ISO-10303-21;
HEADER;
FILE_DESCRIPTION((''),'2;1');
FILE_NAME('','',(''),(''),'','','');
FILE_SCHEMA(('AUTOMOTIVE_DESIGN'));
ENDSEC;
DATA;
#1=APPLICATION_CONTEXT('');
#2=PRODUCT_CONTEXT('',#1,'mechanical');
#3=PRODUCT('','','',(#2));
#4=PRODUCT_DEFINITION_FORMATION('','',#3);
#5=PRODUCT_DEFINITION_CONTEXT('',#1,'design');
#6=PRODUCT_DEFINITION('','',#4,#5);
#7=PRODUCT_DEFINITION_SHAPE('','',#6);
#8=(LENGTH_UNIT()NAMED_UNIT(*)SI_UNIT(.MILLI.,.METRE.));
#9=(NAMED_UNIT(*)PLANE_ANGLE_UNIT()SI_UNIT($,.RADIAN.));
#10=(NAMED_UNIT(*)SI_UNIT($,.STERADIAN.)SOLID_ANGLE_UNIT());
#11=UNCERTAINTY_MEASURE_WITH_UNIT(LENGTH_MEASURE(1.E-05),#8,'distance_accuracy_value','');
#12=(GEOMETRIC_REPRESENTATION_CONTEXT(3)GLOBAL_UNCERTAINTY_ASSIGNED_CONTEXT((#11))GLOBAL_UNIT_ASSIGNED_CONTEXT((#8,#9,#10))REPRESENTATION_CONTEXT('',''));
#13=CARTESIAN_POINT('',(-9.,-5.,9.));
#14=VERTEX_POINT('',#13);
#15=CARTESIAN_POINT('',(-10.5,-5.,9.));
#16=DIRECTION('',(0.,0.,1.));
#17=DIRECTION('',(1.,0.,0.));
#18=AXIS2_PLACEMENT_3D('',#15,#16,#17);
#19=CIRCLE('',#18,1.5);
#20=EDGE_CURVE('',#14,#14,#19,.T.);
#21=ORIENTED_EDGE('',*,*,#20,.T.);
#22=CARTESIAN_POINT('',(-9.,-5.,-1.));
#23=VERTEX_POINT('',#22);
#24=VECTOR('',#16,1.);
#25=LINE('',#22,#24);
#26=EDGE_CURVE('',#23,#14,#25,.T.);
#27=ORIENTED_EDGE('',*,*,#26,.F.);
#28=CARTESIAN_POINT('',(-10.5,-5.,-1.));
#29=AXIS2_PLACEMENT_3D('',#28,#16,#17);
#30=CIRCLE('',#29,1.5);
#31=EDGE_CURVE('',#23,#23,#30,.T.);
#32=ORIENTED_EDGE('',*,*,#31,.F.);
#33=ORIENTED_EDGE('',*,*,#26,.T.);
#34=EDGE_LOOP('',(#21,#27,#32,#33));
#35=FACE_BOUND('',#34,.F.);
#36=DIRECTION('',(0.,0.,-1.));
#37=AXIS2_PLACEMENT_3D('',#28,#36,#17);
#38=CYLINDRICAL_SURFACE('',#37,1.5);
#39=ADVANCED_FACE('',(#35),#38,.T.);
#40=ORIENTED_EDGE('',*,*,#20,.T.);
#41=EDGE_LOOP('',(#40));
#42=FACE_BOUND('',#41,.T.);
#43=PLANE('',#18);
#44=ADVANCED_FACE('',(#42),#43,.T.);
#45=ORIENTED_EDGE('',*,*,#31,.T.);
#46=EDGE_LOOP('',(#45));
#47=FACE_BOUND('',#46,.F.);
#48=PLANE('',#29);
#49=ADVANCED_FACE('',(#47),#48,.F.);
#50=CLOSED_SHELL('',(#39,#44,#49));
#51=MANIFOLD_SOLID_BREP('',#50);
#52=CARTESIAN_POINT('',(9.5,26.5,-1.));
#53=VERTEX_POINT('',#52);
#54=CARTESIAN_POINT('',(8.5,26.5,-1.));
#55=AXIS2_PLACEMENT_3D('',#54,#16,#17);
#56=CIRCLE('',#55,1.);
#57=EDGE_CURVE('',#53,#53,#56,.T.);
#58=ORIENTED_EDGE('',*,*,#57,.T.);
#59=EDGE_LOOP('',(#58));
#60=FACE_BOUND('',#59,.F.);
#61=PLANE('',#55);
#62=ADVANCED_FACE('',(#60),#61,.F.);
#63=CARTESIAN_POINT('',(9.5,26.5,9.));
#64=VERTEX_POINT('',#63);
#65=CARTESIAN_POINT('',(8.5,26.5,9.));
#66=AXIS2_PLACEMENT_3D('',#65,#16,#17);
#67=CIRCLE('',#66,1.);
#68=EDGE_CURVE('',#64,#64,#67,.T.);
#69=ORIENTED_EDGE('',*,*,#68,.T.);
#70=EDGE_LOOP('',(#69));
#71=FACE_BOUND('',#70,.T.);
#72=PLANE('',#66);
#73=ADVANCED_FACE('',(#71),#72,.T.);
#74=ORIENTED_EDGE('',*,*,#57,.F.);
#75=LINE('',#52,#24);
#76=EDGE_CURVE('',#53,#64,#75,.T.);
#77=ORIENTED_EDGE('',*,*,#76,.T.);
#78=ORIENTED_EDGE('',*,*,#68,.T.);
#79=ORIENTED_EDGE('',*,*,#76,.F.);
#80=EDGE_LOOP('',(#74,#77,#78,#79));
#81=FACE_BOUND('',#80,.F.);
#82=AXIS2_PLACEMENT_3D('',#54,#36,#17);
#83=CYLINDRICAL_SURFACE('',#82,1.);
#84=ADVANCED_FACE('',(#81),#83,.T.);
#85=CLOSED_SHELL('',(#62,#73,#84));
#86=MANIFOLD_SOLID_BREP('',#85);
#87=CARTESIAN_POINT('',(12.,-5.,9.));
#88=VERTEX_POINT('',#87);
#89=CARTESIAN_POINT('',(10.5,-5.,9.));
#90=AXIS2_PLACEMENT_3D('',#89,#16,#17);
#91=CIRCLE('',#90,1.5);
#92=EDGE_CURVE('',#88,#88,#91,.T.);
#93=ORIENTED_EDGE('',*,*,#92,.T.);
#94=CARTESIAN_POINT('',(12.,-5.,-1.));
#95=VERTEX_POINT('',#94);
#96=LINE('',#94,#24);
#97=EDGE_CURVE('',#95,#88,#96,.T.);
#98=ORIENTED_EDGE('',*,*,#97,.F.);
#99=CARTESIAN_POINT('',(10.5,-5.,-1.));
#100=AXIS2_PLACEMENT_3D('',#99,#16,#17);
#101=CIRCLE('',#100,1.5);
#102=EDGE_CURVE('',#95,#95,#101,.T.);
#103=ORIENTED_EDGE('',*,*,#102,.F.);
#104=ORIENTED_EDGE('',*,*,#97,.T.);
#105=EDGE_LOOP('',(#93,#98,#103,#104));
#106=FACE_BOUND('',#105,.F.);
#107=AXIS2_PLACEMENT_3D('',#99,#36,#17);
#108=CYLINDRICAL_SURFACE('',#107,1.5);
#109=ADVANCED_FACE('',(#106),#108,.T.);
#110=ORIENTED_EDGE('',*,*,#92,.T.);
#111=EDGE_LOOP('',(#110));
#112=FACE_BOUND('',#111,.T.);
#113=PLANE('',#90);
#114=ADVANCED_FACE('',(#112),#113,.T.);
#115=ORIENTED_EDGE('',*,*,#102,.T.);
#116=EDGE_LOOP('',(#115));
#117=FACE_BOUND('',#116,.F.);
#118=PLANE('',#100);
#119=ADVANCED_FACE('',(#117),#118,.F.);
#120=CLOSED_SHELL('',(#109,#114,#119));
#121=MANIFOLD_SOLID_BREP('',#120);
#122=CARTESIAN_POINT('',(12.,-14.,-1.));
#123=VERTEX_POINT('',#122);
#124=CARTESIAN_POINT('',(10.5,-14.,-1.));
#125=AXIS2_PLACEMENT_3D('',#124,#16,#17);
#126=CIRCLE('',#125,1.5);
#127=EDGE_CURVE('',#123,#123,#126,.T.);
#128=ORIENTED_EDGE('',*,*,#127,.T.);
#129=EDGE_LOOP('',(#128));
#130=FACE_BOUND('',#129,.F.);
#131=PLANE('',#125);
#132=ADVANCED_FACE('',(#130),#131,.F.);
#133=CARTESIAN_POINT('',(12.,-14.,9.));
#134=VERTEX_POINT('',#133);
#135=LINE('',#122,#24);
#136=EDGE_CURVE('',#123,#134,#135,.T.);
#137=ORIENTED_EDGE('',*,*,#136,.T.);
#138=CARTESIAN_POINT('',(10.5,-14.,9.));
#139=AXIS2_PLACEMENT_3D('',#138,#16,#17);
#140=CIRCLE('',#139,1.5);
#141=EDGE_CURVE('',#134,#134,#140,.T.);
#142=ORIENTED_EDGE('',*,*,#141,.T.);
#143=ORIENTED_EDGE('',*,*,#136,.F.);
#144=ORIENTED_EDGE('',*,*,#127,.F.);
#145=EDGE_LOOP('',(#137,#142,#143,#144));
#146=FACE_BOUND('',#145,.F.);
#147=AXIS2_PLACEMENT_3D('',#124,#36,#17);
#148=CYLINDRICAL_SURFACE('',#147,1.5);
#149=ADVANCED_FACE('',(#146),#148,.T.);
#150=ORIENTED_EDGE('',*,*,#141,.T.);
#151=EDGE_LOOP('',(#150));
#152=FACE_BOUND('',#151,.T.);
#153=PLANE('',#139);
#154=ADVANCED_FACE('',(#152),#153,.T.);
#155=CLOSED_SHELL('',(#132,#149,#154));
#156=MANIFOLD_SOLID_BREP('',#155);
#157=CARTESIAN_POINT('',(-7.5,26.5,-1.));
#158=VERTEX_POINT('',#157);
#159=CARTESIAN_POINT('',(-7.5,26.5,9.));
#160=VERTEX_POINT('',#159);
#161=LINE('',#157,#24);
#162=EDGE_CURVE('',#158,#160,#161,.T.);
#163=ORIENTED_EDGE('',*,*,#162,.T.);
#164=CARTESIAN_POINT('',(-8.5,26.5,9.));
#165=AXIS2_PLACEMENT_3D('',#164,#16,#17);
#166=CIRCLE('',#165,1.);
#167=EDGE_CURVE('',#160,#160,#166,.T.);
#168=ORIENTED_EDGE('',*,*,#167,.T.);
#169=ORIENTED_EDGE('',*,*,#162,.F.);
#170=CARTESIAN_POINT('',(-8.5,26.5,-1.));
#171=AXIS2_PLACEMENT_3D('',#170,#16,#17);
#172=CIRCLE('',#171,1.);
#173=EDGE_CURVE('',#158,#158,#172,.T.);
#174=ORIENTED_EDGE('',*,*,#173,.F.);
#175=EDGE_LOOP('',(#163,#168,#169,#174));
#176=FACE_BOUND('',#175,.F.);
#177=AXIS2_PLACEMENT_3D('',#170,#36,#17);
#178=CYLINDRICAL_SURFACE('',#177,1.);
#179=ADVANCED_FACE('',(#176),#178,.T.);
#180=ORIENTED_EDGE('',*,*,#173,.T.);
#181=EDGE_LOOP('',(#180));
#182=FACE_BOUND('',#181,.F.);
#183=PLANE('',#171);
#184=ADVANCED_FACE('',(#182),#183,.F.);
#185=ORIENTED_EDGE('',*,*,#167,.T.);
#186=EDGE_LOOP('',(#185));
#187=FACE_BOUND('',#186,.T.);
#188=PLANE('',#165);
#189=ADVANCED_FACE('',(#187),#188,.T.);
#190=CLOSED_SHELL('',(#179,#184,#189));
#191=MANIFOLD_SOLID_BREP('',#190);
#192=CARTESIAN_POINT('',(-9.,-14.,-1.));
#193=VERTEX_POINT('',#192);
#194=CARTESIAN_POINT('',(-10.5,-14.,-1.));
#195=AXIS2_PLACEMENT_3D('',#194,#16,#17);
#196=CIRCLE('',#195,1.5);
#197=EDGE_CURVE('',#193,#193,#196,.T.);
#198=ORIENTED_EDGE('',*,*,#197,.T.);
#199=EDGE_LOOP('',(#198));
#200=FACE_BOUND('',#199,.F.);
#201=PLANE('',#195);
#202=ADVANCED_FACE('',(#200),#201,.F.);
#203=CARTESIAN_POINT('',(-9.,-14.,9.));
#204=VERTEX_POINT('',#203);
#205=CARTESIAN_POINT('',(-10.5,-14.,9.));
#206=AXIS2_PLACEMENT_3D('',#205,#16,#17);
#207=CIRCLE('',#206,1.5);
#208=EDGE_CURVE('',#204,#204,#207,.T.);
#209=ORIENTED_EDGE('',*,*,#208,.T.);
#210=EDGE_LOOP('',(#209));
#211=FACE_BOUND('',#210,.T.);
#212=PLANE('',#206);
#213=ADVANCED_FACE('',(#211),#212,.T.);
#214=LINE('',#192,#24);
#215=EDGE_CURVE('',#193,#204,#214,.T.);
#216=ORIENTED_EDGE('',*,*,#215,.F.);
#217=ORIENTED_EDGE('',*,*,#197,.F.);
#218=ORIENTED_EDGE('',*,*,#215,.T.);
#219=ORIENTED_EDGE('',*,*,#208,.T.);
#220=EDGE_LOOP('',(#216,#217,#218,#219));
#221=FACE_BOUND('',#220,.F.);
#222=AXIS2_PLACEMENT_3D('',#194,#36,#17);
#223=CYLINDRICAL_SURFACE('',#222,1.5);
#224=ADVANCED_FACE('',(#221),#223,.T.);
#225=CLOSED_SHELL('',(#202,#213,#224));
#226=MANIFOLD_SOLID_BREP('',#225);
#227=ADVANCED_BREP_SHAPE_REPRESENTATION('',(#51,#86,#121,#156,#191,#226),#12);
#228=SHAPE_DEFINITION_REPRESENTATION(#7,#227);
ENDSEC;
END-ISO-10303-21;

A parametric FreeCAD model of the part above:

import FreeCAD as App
import Part
import Sketcher
from FreeCAD import Vector

doc = App.newDocument("Part")
body = doc.addObject("PartDesign::Body", "Body")

sketch1 = doc.addObject("Sketcher::SketchObject", "Sketch")
body.addObject(sketch1)
sketch1.AttachmentSupport = (doc.XY_Plane, [""])
sketch1.MapMode = "FlatFace"
sketch1.AttachmentOffset = App.Placement(Vector(0, 0, -1), App.Rotation())
sketch1.addGeometry(Part.Circle(Vector(-10.5, -14, 0), Vector(0, 0, 1), 1.5), False)
sketch1.addConstraint([
    Sketcher.Constraint("Diameter", 0, 3.0),
    Sketcher.Constraint("DistanceY", 0, 3, -1, 1, 14.0),
    Sketcher.Constraint("DistanceX", 0, 3, -1, 1, 10.5),
])
pad1 = doc.addObject("PartDesign::Pad", "Pad")
body.addObject(pad1)
pad1.Profile = sketch1
pad1.Length = 10
body2 = doc.addObject("PartDesign::Body", "Body001")

sketch2 = doc.addObject("Sketcher::SketchObject", "Sketch001")
body2.addObject(sketch2)
sketch2.AttachmentSupport = (doc.getObject("XY_Plane001"), [""])
sketch2.MapMode = "FlatFace"
sketch2.AttachmentOffset = App.Placement(Vector(0, 0, -1), App.Rotation())
sketch2.addGeometry(Part.Circle(Vector(10.5, -5, 0), Vector(0, 0, 1), 1.5), False)
sketch2.addConstraint([
    Sketcher.Constraint("Diameter", 0, 3.0),
    Sketcher.Constraint("DistanceY", 0, 3, -1, 1, 5.0),
    Sketcher.Constraint("DistanceX", -1, 1, 0, 3, 10.5),
])
pad2 = doc.addObject("PartDesign::Pad", "Pad001")
body2.addObject(pad2)
pad2.Profile = sketch2
pad2.Length = 10
body3 = doc.addObject("PartDesign::Body", "Body002")

sketch3 = doc.addObject("Sketcher::SketchObject", "Sketch002")
body3.addObject(sketch3)
sketch3.AttachmentSupport = (doc.getObject("XY_Plane002"), [""])
sketch3.MapMode = "FlatFace"
sketch3.AttachmentOffset = App.Placement(Vector(0, 0, -1), App.Rotation())
sketch3.addGeometry(Part.Circle(Vector(10.5, -14, 0), Vector(0, 0, 1), 1.5), False)
sketch3.addConstraint([
    Sketcher.Constraint("Diameter", 0, 3.0),
    Sketcher.Constraint("DistanceY", 0, 3, -1, 1, 14.0),
    Sketcher.Constraint("DistanceX", -1, 1, 0, 3, 10.5),
])
pad3 = doc.addObject("PartDesign::Pad", "Pad002")
body3.addObject(pad3)
pad3.Profile = sketch3
pad3.Length = 10
body4 = doc.addObject("PartDesign::Body", "Body003")

sketch4 = doc.addObject("Sketcher::SketchObject", "Sketch003")
body4.addObject(sketch4)
sketch4.AttachmentSupport = (doc.getObject("XY_Plane003"), [""])
sketch4.MapMode = "FlatFace"
sketch4.AttachmentOffset = App.Placement(Vector(0, 0, -1), App.Rotation())
sketch4.addGeometry(Part.Circle(Vector(-8.5, 26.5, 0), Vector(0, 0, 1), 1), False)
sketch4.addConstraint([
    Sketcher.Constraint("Diameter", 0, 2.0),
    Sketcher.Constraint("DistanceX", 0, 3, -1, 1, 8.5),
    Sketcher.Constraint("DistanceY", -1, 1, 0, 3, 26.5),
])
pad4 = doc.addObject("PartDesign::Pad", "Pad003")
body4.addObject(pad4)
pad4.Profile = sketch4
pad4.Length = 10
body5 = doc.addObject("PartDesign::Body", "Body004")

sketch5 = doc.addObject("Sketcher::SketchObject", "Sketch004")
body5.addObject(sketch5)
sketch5.AttachmentSupport = (doc.getObject("XY_Plane004"), [""])
sketch5.MapMode = "FlatFace"
sketch5.AttachmentOffset = App.Placement(Vector(0, 0, -1), App.Rotation())
sketch5.addGeometry(Part.Circle(Vector(8.5, 26.5, 0), Vector(0, 0, 1), 1), False)
sketch5.addConstraint([
    Sketcher.Constraint("Diameter", 0, 2.0),
    Sketcher.Constraint("DistanceX", -1, 1, 0, 3, 8.5),
    Sketcher.Constraint("DistanceY", -1, 1, 0, 3, 26.5),
])
pad5 = doc.addObject("PartDesign::Pad", "Pad004")
body5.addObject(pad5)
pad5.Profile = sketch5
pad5.Length = 10
body6 = doc.addObject("PartDesign::Body", "Body005")
body6.AllowCompound = True

sketch6 = doc.addObject("Sketcher::SketchObject", "Sketch005")
body6.addObject(sketch6)
sketch6.AttachmentSupport = (doc.getObject("XY_Plane005"), [""])
sketch6.MapMode = "FlatFace"
sketch6.AttachmentOffset = App.Placement(Vector(0, 0, -1), App.Rotation())
sketch6.addGeometry(Part.Circle(Vector(-10.5, -5, 0), Vector(0, 0, 1), 1.5), False)
sketch6.addConstraint([
    Sketcher.Constraint("Diameter", 0, 3.0),
    Sketcher.Constraint("DistanceY", 0, 3, -1, 1, 5.0),
    Sketcher.Constraint("DistanceX", 0, 3, -1, 1, 10.5),
])
pad6 = doc.addObject("PartDesign::Pad", "Pad005")
body6.addObject(pad6)
pad6.Profile = sketch6
pad6.Length = 10
doc.recompute()

boolean = doc.addObject("PartDesign::Boolean", "Boolean")
body6.addObject(boolean)
boolean.Type = "Fuse"
boolean.addObjects([body])
doc.recompute()

boolean2 = doc.addObject("PartDesign::Boolean", "Boolean001")
body6.addObject(boolean2)
boolean2.Type = "Fuse"
boolean2.addObjects([body2])
doc.recompute()

boolean3 = doc.addObject("PartDesign::Boolean", "Boolean002")
body6.addObject(boolean3)
boolean3.Type = "Fuse"
boolean3.addObjects([body3])
doc.recompute()

boolean4 = doc.addObject("PartDesign::Boolean", "Boolean003")
body6.addObject(boolean4)
boolean4.Type = "Fuse"
boolean4.addObjects([body4])
doc.recompute()

boolean5 = doc.addObject("PartDesign::Boolean", "Boolean004")
body6.addObject(boolean5)
boolean5.Type = "Fuse"
boolean5.addObjects([body5])

doc.recompute()
